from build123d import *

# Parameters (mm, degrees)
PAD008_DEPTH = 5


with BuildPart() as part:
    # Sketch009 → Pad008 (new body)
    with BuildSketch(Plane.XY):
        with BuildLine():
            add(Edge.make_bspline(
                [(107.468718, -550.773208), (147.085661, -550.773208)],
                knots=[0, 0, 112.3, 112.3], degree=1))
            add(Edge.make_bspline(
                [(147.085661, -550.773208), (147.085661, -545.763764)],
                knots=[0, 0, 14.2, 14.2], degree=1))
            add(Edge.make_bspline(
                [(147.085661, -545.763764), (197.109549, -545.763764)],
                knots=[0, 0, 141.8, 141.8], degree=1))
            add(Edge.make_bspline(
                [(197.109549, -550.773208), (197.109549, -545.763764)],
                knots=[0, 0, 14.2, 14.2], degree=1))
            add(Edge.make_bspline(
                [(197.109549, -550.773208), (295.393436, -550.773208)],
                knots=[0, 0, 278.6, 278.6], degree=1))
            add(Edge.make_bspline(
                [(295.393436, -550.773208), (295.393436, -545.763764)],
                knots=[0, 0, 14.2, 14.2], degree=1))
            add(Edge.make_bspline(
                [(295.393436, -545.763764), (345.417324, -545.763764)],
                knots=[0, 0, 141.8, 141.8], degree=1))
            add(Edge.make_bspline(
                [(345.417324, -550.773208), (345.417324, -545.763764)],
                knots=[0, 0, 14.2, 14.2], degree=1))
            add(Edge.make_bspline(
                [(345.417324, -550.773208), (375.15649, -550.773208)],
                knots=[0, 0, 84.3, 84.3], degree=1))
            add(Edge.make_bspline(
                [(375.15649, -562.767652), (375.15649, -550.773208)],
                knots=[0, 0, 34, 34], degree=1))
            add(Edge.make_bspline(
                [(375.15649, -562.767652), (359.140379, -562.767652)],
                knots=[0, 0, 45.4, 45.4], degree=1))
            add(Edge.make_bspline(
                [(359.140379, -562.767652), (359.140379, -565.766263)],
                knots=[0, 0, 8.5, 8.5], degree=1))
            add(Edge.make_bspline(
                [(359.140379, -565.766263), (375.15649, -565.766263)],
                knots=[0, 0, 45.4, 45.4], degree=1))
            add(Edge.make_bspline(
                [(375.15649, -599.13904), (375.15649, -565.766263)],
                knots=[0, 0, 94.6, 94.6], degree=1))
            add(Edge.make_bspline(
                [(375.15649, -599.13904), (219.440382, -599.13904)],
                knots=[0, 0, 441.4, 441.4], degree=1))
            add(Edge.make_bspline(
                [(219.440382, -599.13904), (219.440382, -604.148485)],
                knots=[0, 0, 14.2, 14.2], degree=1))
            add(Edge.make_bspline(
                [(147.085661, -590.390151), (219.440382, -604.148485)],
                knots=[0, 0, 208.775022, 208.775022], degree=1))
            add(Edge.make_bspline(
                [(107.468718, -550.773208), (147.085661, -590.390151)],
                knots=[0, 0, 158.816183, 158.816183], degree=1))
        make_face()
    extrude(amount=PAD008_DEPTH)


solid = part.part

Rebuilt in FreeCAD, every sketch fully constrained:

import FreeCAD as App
import Part
import Sketcher

V = App.Vector

doc = App.newDocument("Part")
body = doc.addObject("PartDesign::Body", "Body")

# Sketch on XY plane
sketch1 = doc.addObject("Sketcher::SketchObject", "Sketch")
body.addObject(sketch1)
sketch1.AttachmentSupport = (doc.XY_Plane, [""])
sketch1.MapMode = "FlatFace"
sketch1.addGeometry([
    Part.BSplineCurve([V(107.468718, -550.773208, 0), V(147.085661, -550.773208, 0)], [2, 2], [0, 112.3], False, 1, [1, 1], False),  # 0
    Part.BSplineCurve([V(107.468718, -550.773208, 0), V(147.085661, -590.390151, 0)], [2, 2], [0, 158.816183], False, 1, [1, 1], False),  # 1
    Part.BSplineCurve([V(147.085661, -590.390151, 0), V(219.440382, -604.148485, 0)], [2, 2], [0, 208.775022], False, 1, [1, 1], False),  # 2
    Part.BSplineCurve([V(219.440382, -599.13904, 0), V(219.440382, -604.148485, 0)], [2, 2], [0, 14.2], False, 1, [1, 1], False),  # 3
    Part.BSplineCurve([V(375.15649, -599.13904, 0), V(219.440382, -599.13904, 0)], [2, 2], [0, 441.4], False, 1, [1, 1], False),  # 4
    Part.BSplineCurve([V(375.15649, -599.13904, 0), V(375.15649, -565.766263, 0)], [2, 2], [0, 94.6], False, 1, [1, 1], False),  # 5
    Part.BSplineCurve([V(359.140379, -565.766263, 0), V(375.15649, -565.766263, 0)], [2, 2], [0, 45.4], False, 1, [1, 1], False),  # 6
    Part.BSplineCurve([V(359.140379, -562.767652, 0), V(359.140379, -565.766263, 0)], [2, 2], [0, 8.5], False, 1, [1, 1], False),  # 7
    Part.BSplineCurve([V(375.15649, -562.767652, 0), V(359.140379, -562.767652, 0)], [2, 2], [0, 45.4], False, 1, [1, 1], False),  # 8
    Part.BSplineCurve([V(375.15649, -562.767652, 0), V(375.15649, -550.773208, 0)], [2, 2], [0, 34], False, 1, [1, 1], False),  # 9
    Part.BSplineCurve([V(345.417324, -550.773208, 0), V(375.15649, -550.773208, 0)], [2, 2], [0, 84.3], False, 1, [1, 1], False),  # 10
    Part.BSplineCurve([V(345.417324, -550.773208, 0), V(345.417324, -545.763764, 0)], [2, 2], [0, 14.2], False, 1, [1, 1], False),  # 11
    Part.BSplineCurve([V(295.393436, -545.763764, 0), V(345.417324, -545.763764, 0)], [2, 2], [0, 141.8], False, 1, [1, 1], False),  # 12
    Part.BSplineCurve([V(295.393436, -550.773208, 0), V(295.393436, -545.763764, 0)], [2, 2], [0, 14.2], False, 1, [1, 1], False),  # 13
    Part.BSplineCurve([V(197.109549, -550.773208, 0), V(295.393436, -550.773208, 0)], [2, 2], [0, 278.6], False, 1, [1, 1], False),  # 14
    Part.BSplineCurve([V(197.109549, -550.773208, 0), V(197.109549, -545.763764, 0)], [2, 2], [0, 14.2], False, 1, [1, 1], False),  # 15
    Part.BSplineCurve([V(147.085661, -545.763764, 0), V(197.109549, -545.763764, 0)], [2, 2], [0, 141.8], False, 1, [1, 1], False),  # 16
    Part.BSplineCurve([V(147.085661, -550.773208, 0), V(147.085661, -545.763764, 0)], [2, 2], [0, 14.2], False, 1, [1, 1], False),  # 17
], False)
sketch1.addConstraint([
    Sketcher.Constraint("Block", 0),
    Sketcher.Constraint("Block", 1),
    Sketcher.Constraint("Block", 2),
    Sketcher.Constraint("Block", 3),
    Sketcher.Constraint("Block", 4),
    Sketcher.Constraint("Block", 5),
    Sketcher.Constraint("Block", 6),
    Sketcher.Constraint("Block", 7),
    Sketcher.Constraint("Block", 8),
    Sketcher.Constraint("Block", 9),
    Sketcher.Constraint("Block", 10),
    Sketcher.Constraint("Block", 11),
    Sketcher.Constraint("Block", 12),
    Sketcher.Constraint("Block", 13),
    Sketcher.Constraint("Block", 14),
    Sketcher.Constraint("Block", 15),
    Sketcher.Constraint("Block", 16),
    Sketcher.Constraint("Block", 17),
])
pad1 = doc.addObject("PartDesign::Pad", "Pad")
body.addObject(pad1)
pad1.Profile = sketch1
pad1.Length = 5

doc.recompute()
